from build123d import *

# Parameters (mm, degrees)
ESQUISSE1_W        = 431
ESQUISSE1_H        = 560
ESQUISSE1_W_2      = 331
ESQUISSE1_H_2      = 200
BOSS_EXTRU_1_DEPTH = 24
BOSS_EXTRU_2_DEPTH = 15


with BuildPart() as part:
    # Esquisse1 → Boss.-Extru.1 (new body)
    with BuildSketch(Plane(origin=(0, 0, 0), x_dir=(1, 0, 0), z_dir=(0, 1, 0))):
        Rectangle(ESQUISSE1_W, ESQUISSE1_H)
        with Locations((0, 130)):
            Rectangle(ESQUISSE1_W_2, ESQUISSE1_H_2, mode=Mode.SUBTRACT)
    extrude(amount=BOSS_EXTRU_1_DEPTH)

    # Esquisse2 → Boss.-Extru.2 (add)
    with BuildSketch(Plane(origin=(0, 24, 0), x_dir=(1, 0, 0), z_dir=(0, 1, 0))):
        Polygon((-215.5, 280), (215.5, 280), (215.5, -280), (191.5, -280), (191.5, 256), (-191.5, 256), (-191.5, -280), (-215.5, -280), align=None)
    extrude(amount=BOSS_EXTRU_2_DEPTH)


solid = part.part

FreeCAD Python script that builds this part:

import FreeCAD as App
import Part
import Sketcher
from FreeCAD import Vector

doc = App.newDocument("Part")
body = doc.addObject("PartDesign::Body", "Body")

sketch1 = body.newObject("Sketcher::SketchObject", "Sketch")
sketch1.AttachmentSupport = (doc.getObject("XZ_Plane"), [""])
sketch1.MapMode = "FlatFace"
sketch1.addGeometry([
    Part.LineSegment(Vector(-215.5, -280, 0), Vector(-215.5, 280, 0)),
    Part.LineSegment(Vector(-215.5, 280, 0), Vector(215.5, 280, 0)),
    Part.LineSegment(Vector(215.5, 280, 0), Vector(215.5, -280, 0)),
    Part.LineSegment(Vector(215.5, -280, 0), Vector(-215.5, -280, 0)),
    Part.LineSegment(Vector(165.5, -30, 0), Vector(-165.5, -30, 0)),
    Part.LineSegment(Vector(-165.5, -30, 0), Vector(-165.5, -230, 0)),
    Part.LineSegment(Vector(-165.5, -230, 0), Vector(165.5, -230, 0)),
    Part.LineSegment(Vector(165.5, -230, 0), Vector(165.5, -30, 0)),
], False)
sketch1.addConstraint([
    Sketcher.Constraint("Coincident", 0, 2, 1, 1),
    Sketcher.Constraint("Coincident", 1, 2, 2, 1),
    Sketcher.Constraint("Coincident", 2, 2, 3, 1),
    Sketcher.Constraint("Coincident", 3, 2, 0, 1),
    Sketcher.Constraint("Coincident", 4, 2, 5, 1),
    Sketcher.Constraint("Coincident", 5, 2, 6, 1),
    Sketcher.Constraint("Coincident", 6, 2, 7, 1),
    Sketcher.Constraint("Coincident", 7, 2, 4, 1),
    Sketcher.Constraint("Vertical", 0),
    Sketcher.Constraint("Horizontal", 1),
    Sketcher.Constraint("Vertical", 2),
    Sketcher.Constraint("Horizontal", 3),
    Sketcher.Constraint("Horizontal", 4),
    Sketcher.Constraint("Vertical", 5),
    Sketcher.Constraint("Horizontal", 6),
    Sketcher.Constraint("Vertical", 7),
    Sketcher.Constraint("Symmetric", 0, 2, 2, 2, -1, 1),
    Sketcher.Constraint("DistanceX", 1, 1, 1, 2, 431.0),
    Sketcher.Constraint("DistanceX", 4, 2, 4, 1, 331.0),
    Sketcher.Constraint("DistanceY", 0, 1, 0, 2, 560.0),
    Sketcher.Constraint("DistanceY", 5, 2, 5, 1, 200.0),
    Sketcher.Constraint("DistanceY", 4, 2, -1, 1, 30.0),
    Sketcher.Constraint("DistanceX", 3, 2, 4, 2, 50.0),
])
pad1 = body.newObject("PartDesign::Pad", "Pad")
pad1.Profile = sketch1
pad1.Length = 24
pad1.Reversed = True

sketch2 = body.newObject("Sketcher::SketchObject", "Sketch001")
sketch2.AttachmentSupport = (doc.getObject("XZ_Plane"), [""])
sketch2.MapMode = "FlatFace"
sketch2.AttachmentOffset = App.Placement(Vector(0, 0, -24), App.Rotation())
sketch2.addGeometry([
    Part.LineSegment(Vector(215.5, -280, 0), Vector(-215.5, -280, 0)),
    Part.LineSegment(Vector(-215.5, -280, 0), Vector(-215.5, 280, 0)),
    Part.LineSegment(Vector(-215.5, 280, 0), Vector(-191.5, 280, 0)),
    Part.LineSegment(Vector(-191.5, 280, 0), Vector(-191.5, -256, 0)),
    Part.LineSegment(Vector(-191.5, -256, 0), Vector(191.5, -256, 0)),
    Part.LineSegment(Vector(191.5, -256, 0), Vector(191.5, 280, 0)),
    Part.LineSegment(Vector(191.5, 280, 0), Vector(215.5, 280, 0)),
    Part.LineSegment(Vector(215.5, 280, 0), Vector(215.5, -280, 0)),
], False)
sketch2.addConstraint([
    Sketcher.Constraint("Coincident", 0, 2, 1, 1),
    Sketcher.Constraint("Coincident", 1, 2, 2, 1),
    Sketcher.Constraint("Coincident", 2, 2, 3, 1),
    Sketcher.Constraint("Coincident", 3, 2, 4, 1),
    Sketcher.Constraint("Coincident", 4, 2, 5, 1),
    Sketcher.Constraint("Coincident", 5, 2, 6, 1),
    Sketcher.Constraint("Coincident", 6, 2, 7, 1),
    Sketcher.Constraint("Coincident", 7, 2, 0, 1),
    Sketcher.Constraint("Horizontal", 0),
    Sketcher.Constraint("Vertical", 1),
    Sketcher.Constraint("Horizontal", 2),
    Sketcher.Constraint("Vertical", 3),
    Sketcher.Constraint("Horizontal", 4),
    Sketcher.Constraint("Vertical", 5),
    Sketcher.Constraint("Horizontal", 6),
    Sketcher.Constraint("Vertical", 7),
    Sketcher.Constraint("Symmetric", 0, 2, 6, 2, -1, 1),
    Sketcher.Constraint("Symmetric", 2, 2, 5, 2, -2),
    Sketcher.Constraint("DistanceX", 0, 2, 0, 1, 431.0),
    Sketcher.Constraint("DistanceX", 2, 1, 2, 2, 24.0),
    Sketcher.Constraint("DistanceY", 1, 1, 1, 2, 560.0),
    Sketcher.Constraint("DistanceY", 3, 2, 3, 1, 536.0),
])
pad2 = body.newObject("PartDesign::Pad", "Pad001")
pad2.Profile = sketch2
pad2.Length = 15
pad2.Reversed = True

doc.recompute()
